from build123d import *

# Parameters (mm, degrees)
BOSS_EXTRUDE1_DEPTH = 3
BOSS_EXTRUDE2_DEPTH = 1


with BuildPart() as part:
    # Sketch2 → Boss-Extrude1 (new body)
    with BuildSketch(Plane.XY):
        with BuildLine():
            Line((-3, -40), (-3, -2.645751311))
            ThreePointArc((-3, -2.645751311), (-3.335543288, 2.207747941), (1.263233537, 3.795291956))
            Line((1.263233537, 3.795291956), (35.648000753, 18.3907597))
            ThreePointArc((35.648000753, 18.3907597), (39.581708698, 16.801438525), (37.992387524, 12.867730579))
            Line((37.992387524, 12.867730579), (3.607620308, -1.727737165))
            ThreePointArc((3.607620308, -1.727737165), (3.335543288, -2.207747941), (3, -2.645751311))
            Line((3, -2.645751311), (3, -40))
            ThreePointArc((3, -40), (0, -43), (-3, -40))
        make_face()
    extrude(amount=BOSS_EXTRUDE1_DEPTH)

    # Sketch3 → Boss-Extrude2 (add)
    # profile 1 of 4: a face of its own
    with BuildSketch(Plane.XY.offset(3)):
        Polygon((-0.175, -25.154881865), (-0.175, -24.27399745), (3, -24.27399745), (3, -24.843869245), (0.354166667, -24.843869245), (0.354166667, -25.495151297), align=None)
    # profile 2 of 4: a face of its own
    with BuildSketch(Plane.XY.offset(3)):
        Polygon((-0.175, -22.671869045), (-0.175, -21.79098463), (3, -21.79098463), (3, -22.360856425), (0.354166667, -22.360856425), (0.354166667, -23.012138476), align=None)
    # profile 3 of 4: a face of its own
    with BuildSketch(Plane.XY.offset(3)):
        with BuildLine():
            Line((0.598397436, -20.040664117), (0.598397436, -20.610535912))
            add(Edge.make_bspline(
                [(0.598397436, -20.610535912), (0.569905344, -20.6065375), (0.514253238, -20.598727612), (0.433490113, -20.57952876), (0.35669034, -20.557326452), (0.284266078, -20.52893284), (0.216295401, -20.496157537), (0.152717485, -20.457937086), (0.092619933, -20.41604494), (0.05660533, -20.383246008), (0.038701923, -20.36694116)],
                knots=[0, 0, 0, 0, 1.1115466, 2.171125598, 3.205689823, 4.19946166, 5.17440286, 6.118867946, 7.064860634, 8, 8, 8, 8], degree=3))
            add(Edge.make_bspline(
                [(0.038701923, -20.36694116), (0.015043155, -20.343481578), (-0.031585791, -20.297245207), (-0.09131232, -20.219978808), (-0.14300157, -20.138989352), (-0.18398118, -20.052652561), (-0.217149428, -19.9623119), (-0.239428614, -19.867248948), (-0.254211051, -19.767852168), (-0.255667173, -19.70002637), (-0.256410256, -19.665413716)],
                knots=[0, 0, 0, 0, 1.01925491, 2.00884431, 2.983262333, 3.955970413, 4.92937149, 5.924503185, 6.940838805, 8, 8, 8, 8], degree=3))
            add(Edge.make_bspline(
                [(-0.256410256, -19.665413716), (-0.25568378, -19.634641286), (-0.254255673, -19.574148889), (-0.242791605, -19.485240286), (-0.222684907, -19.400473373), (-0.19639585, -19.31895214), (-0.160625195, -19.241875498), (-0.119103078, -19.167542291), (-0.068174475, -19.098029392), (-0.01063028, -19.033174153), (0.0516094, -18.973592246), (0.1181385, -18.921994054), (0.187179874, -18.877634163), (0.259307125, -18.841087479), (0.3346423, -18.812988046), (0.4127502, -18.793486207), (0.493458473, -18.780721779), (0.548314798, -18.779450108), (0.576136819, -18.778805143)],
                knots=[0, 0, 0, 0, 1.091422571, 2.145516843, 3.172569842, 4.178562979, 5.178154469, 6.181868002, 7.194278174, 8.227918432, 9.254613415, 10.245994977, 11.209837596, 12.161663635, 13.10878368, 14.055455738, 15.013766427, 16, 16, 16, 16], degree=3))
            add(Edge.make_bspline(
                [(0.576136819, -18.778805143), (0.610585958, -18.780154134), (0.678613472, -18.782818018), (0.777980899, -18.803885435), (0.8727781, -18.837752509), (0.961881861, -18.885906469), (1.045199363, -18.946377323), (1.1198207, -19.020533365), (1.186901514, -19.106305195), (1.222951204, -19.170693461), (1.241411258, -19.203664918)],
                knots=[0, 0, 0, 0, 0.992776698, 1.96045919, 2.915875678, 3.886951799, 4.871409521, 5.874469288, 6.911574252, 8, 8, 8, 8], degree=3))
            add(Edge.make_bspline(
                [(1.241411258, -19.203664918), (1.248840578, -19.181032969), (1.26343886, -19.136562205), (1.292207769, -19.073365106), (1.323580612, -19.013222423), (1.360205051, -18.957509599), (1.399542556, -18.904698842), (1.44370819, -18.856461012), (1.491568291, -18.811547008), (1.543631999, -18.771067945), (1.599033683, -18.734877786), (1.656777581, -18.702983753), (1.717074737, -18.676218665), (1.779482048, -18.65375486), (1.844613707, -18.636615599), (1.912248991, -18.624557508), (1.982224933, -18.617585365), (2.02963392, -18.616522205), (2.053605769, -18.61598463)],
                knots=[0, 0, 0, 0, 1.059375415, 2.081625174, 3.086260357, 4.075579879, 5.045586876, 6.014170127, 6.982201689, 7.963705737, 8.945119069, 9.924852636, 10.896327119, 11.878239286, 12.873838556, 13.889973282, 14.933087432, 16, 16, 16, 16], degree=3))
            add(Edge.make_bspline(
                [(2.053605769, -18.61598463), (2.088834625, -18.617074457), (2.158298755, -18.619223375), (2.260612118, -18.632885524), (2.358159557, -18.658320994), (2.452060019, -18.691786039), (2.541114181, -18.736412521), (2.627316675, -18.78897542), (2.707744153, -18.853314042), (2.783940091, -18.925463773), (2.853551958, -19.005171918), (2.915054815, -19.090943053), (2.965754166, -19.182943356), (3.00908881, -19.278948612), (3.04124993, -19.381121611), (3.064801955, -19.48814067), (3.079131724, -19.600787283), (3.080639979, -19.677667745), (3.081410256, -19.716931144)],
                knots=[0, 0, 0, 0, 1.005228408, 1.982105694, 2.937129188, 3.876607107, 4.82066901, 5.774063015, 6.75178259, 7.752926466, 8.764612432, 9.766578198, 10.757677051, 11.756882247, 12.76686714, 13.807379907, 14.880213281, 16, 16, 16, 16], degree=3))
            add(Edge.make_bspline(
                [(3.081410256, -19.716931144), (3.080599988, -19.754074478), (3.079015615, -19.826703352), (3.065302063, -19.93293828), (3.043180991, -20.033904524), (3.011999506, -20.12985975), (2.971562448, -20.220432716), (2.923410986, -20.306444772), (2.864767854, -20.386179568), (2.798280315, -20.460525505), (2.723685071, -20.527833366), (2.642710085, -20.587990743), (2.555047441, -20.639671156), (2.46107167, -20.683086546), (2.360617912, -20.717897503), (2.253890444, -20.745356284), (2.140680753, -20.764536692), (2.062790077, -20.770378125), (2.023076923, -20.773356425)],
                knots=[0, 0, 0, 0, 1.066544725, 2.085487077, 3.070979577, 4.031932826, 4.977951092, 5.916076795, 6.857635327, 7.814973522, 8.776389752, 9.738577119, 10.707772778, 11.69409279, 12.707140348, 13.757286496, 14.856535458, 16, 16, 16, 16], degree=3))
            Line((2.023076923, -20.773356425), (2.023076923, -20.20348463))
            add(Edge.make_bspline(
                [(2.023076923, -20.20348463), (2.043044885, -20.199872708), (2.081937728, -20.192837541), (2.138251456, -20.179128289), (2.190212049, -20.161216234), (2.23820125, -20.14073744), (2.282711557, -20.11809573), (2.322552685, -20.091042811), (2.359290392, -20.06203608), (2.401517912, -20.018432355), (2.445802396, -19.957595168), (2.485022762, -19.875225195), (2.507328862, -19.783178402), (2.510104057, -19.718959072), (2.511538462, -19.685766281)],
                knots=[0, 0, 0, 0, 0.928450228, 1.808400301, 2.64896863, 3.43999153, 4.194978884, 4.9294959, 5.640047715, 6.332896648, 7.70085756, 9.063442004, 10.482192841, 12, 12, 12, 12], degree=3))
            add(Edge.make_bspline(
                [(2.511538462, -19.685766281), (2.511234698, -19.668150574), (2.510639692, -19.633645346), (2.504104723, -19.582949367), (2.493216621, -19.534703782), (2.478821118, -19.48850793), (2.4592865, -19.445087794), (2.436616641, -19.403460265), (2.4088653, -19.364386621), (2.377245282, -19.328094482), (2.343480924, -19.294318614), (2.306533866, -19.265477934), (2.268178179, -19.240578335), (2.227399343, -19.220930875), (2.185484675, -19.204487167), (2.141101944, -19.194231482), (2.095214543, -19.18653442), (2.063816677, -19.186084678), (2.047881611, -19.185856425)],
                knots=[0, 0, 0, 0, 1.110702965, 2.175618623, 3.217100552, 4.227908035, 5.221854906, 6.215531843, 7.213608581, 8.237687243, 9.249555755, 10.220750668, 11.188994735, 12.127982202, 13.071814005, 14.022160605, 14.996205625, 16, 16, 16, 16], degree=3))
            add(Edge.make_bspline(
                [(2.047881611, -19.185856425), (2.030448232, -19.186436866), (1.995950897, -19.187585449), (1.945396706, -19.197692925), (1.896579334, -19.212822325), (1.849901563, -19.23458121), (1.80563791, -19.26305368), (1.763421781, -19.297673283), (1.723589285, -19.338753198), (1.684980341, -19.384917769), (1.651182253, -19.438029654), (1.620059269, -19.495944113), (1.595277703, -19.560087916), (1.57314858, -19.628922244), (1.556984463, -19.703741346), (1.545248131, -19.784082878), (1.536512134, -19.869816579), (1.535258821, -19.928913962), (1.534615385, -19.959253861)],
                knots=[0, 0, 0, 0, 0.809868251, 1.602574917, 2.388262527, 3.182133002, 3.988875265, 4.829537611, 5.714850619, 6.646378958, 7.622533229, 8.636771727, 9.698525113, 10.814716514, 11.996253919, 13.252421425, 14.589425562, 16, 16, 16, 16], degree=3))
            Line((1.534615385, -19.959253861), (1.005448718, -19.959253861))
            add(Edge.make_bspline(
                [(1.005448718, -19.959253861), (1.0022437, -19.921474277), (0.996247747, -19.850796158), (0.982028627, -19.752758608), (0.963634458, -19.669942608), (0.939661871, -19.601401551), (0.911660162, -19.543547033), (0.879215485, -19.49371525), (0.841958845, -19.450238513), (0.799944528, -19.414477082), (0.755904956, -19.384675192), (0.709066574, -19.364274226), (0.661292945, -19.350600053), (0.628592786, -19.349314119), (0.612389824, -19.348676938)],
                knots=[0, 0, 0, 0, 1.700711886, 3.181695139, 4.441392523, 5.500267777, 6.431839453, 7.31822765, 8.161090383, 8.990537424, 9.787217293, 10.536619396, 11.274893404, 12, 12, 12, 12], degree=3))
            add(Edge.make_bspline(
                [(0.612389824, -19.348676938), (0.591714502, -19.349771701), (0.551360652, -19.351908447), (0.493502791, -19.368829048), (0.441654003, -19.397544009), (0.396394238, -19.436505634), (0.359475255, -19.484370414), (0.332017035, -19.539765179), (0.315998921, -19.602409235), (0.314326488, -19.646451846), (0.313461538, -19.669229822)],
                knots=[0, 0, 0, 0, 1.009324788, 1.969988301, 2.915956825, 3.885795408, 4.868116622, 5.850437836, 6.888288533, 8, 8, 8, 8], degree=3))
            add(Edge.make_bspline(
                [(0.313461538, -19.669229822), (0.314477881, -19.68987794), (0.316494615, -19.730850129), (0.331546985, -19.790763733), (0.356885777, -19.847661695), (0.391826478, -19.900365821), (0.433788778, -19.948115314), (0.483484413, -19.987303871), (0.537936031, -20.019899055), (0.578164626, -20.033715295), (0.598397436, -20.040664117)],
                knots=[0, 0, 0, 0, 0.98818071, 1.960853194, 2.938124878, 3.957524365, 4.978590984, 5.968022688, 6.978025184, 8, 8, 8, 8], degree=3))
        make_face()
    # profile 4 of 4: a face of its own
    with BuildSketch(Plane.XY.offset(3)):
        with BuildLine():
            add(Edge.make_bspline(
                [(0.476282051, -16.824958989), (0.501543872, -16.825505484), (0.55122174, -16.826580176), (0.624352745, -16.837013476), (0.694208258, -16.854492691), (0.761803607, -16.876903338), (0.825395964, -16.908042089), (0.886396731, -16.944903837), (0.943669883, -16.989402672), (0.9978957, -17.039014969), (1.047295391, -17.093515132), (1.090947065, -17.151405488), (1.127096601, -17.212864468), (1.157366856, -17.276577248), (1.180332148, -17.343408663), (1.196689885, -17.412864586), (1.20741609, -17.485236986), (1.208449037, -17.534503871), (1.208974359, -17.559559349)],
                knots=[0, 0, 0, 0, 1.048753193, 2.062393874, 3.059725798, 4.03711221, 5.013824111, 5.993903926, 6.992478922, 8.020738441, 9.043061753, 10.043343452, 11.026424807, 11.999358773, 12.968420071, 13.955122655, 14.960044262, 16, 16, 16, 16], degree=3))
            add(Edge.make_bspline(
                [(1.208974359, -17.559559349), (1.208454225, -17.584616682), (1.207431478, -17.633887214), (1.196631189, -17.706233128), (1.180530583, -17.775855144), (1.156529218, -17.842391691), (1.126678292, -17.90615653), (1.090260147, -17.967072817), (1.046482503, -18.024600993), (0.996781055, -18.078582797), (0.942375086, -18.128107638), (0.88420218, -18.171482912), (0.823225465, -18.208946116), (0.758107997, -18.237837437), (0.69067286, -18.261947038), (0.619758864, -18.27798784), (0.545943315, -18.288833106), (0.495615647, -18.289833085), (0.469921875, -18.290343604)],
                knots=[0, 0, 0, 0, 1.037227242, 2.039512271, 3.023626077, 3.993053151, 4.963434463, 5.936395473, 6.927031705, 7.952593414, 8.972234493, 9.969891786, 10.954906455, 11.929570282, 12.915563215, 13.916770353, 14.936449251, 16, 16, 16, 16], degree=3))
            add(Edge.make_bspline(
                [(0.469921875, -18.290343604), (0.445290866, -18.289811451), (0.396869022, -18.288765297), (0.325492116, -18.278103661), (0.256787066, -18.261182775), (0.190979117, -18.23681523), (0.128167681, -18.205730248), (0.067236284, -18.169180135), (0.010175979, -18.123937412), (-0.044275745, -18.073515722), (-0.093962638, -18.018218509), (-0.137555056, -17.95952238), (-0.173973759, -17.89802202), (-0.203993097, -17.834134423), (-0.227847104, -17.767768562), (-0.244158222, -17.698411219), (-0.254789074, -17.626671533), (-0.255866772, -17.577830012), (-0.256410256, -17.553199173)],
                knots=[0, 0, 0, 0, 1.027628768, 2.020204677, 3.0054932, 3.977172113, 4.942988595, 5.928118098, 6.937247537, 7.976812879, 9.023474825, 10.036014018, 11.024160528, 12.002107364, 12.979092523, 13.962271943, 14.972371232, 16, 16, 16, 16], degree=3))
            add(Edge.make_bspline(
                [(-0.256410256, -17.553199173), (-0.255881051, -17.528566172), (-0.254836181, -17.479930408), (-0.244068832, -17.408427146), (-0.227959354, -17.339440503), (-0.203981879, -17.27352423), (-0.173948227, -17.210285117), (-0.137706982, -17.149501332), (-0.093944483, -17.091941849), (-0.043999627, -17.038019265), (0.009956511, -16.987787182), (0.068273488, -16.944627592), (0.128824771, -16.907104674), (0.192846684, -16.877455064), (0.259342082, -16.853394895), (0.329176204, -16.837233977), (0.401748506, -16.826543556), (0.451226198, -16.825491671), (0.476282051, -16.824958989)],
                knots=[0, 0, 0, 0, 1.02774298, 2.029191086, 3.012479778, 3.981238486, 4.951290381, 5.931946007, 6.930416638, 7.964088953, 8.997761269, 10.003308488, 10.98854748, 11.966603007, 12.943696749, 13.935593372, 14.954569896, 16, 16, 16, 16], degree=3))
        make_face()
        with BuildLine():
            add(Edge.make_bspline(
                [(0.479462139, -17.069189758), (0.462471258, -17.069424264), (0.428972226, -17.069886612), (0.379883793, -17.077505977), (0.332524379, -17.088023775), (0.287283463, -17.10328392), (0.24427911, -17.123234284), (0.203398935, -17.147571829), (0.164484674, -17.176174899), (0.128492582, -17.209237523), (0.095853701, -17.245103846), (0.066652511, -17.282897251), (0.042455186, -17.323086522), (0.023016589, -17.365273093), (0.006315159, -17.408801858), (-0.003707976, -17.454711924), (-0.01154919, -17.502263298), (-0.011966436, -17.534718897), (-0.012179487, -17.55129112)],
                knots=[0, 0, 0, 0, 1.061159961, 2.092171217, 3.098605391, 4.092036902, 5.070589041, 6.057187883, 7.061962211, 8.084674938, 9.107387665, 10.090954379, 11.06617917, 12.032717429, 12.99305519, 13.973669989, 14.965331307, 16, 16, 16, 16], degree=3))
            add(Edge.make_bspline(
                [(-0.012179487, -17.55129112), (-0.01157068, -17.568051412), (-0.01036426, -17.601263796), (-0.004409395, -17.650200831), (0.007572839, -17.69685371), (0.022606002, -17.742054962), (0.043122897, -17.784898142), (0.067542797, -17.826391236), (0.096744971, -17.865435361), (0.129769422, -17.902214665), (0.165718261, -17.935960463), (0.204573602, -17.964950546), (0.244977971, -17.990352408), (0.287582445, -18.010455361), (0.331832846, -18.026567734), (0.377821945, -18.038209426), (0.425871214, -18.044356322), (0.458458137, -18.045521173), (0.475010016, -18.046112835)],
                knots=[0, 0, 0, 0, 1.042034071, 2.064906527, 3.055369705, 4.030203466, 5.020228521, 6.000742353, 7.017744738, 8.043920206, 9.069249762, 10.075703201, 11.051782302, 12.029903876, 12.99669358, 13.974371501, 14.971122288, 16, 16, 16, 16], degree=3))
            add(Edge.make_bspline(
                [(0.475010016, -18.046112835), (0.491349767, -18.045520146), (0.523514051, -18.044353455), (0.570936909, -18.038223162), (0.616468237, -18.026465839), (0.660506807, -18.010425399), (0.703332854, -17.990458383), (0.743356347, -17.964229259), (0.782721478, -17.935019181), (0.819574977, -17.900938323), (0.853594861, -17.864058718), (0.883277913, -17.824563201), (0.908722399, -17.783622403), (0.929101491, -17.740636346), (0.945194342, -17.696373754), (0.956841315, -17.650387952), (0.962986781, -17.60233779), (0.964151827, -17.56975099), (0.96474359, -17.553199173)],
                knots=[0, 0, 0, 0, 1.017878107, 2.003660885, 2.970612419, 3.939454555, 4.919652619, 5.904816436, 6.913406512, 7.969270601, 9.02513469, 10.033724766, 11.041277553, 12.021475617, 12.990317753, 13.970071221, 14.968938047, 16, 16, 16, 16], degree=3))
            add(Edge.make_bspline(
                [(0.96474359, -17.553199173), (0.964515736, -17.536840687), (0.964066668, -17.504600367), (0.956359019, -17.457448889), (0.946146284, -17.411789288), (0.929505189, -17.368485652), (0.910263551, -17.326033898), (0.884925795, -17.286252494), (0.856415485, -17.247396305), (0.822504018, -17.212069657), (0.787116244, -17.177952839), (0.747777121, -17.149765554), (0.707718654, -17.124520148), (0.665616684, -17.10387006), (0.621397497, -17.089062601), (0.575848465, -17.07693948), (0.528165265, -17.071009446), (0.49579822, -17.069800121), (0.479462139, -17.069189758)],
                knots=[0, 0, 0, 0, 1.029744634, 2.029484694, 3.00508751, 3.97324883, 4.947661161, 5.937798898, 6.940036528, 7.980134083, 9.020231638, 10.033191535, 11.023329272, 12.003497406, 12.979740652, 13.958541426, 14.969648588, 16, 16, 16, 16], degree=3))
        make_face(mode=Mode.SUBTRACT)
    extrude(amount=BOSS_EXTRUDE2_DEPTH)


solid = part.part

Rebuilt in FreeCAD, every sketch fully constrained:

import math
import FreeCAD as App
import Part
import Sketcher
Q = App.Units.Quantity

doc = App.newDocument("Part")
body = doc.addObject("PartDesign::Body", "Body")

sketch1 = doc.addObject("Sketcher::SketchObject", "Sketch")
body.addObject(sketch1)
sketch1.AttachmentSupport = (doc.XY_Plane, [""])
sketch1.MapMode = "FlatFace"
sketch1.addGeometry(Part.LineSegment(App.Vector(-3, -2.6, 0), App.Vector(-3, -40, 0)), False)
sketch1.addGeometry(Part.ArcOfCircle(Part.Circle(App.Vector(0, -40, 0), App.Vector(0, 0, 1), 3), math.radians(180), math.radians(360)), False)
sketch1.addGeometry(Part.LineSegment(App.Vector(3, -40, 0), App.Vector(3, -2.6, 0)), False)
sketch1.addGeometry(Part.ArcOfCircle(Part.Circle(App.Vector(0, 0, 0), App.Vector(0, 0, 1), 4), math.radians(-41.41), math.radians(-25.59)), False)
sketch1.addGeometry(Part.LineSegment(App.Vector(3.6, -1.7, 0), App.Vector(38, 12.9, 0)), False)
sketch1.addGeometry(Part.ArcOfCircle(Part.Circle(App.Vector(36.8, 15.6, 0), App.Vector(0, 0, 1), 3), math.radians(-67), math.radians(113)), False)
sketch1.addGeometry(Part.LineSegment(App.Vector(35.6, 18.4, 0), App.Vector(1.3, 3.8, 0)), False)
sketch1.addGeometry(Part.ArcOfCircle(Part.Circle(App.Vector(0, 0, 0), App.Vector(0, 0, 1), 4), math.radians(72), math.radians(221)), False)
sketch1.addConstraint(Sketcher.Constraint("Tangent", 0, 2, 1, 1))
sketch1.addConstraint(Sketcher.Constraint("Tangent", 1, 2, 2, 1))
sketch1.addConstraint(Sketcher.Constraint("Coincident", 2, 2, 3, 1))
sketch1.addConstraint(Sketcher.Constraint("Coincident", 3, 2, 4, 1))
sketch1.addConstraint(Sketcher.Constraint("Tangent", 4, 2, 5, 1))
sketch1.addConstraint(Sketcher.Constraint("Tangent", 5, 2, 6, 1))
sketch1.addConstraint(Sketcher.Constraint("Coincident", 6, 2, 7, 1))
sketch1.addConstraint(Sketcher.Constraint("Coincident", 7, 2, 0, 1))
sketch1.addConstraint(Sketcher.Constraint("Vertical", 0))
sketch1.addConstraint(Sketcher.Constraint("Vertical", 2))
sketch1.addConstraint(Sketcher.Constraint("Coincident", 3, 3, -1, 1))
sketch1.addConstraint(Sketcher.Constraint("Coincident", 7, 3, -1, 1))
sketch1.addConstraint(Sketcher.Constraint("Equal", 1, 5))
sketch1.addConstraint(Sketcher.Constraint("Equal", 3, 7))
sketch1.addConstraint(Sketcher.Constraint("PointOnObject", 1, 3, -2))
sketch1.addConstraint(Sketcher.Constraint("Parallel", 4, 6))
sketch1.addConstraint(Sketcher.Constraint("Equal", 4, 6))
sketch1.addConstraint(Sketcher.Constraint("Radius", 1, 3.0))
sketch1.addConstraint(Sketcher.Constraint("Radius", 3, 4.0))
sketch1.addConstraint(Sketcher.Constraint("Angle", 4, Q("23 deg")))
sketch1.addConstraint(Sketcher.Constraint("DistanceY", 1, 3, -1, 1, 40.0))
sketch1.addConstraint(Sketcher.Constraint("DistanceX", -1, 1, 5, 2, 35.648001))
pad1 = doc.addObject("PartDesign::Pad", "Pad")
body.addObject(pad1)
pad1.Profile = sketch1
pad1.Length = 3

sketch2 = doc.addObject("Sketcher::SketchObject", "Sketch001")
body.addObject(sketch2)
sketch2.AttachmentSupport = (doc.XY_Plane, [""])
sketch2.MapMode = "FlatFace"
sketch2.AttachmentOffset = App.Placement(App.Vector(0, 0, 3), App.Rotation())
sketch2.addGeometry(Part.LineSegment(App.Vector(-0.175, -24.273997, 0), App.Vector(-0.175, -25.154882, 0)), False)
sketch2.addGeometry(Part.LineSegment(App.Vector(-0.175, -25.154882, 0), App.Vector(0.354167, -25.495151, 0)), False)
sketch2.addGeometry(Part.LineSegment(App.Vector(0.354167, -25.495151, 0), App.Vector(0.354167, -24.843869, 0)), False)
sketch2.addGeometry(Part.LineSegment(App.Vector(0.354167, -24.843869, 0), App.Vector(3, -24.843869, 0)), False)
sketch2.addGeometry(Part.LineSegment(App.Vector(3, -24.843869, 0), App.Vector(3, -24.273997, 0)), False)
sketch2.addGeometry(Part.LineSegment(App.Vector(3, -24.273997, 0), App.Vector(-0.175, -24.273997, 0)), False)
sketch2.addGeometry(Part.LineSegment(App.Vector(-0.175, -21.790985, 0), App.Vector(-0.175, -22.671869, 0)), False)
sketch2.addGeometry(Part.LineSegment(App.Vector(-0.175, -22.671869, 0), App.Vector(0.354167, -23.012138, 0)), False)
sketch2.addGeometry(Part.LineSegment(App.Vector(0.354167, -23.012138, 0), App.Vector(0.354167, -22.360856, 0)), False)
sketch2.addGeometry(Part.LineSegment(App.Vector(0.354167, -22.360856, 0), App.Vector(3, -22.360856, 0)), False)
sketch2.addGeometry(Part.LineSegment(App.Vector(3, -22.360856, 0), App.Vector(3, -21.790985, 0)), False)
sketch2.addGeometry(Part.LineSegment(App.Vector(3, -21.790985, 0), App.Vector(-0.175, -21.790985, 0)), False)
sketch2.addGeometry(Part.LineSegment(App.Vector(0.598397, -20.610536, 0), App.Vector(0.598397, -20.040664, 0)), False)
sketch2.addGeometry(Part.BSplineCurve([App.Vector(0.313462, -19.66923, 0), App.Vector(0.314478, -19.689878, 0), App.Vector(0.316495, -19.73085, 0), App.Vector(0.331547, -19.790764, 0), App.Vector(0.356886, -19.847662, 0), App.Vector(0.391826, -19.900366, 0), App.Vector(0.433789, -19.948115, 0), App.Vector(0.483484, -19.987304, 0), App.Vector(0.537936, -20.019899, 0), App.Vector(0.578165, -20.033715, 0), App.Vector(0.598397, -20.040664, 0)], [4, 1, 1, 1, 1, 1, 1, 1, 4], [0, 0.98818071, 1.960853194, 2.938124878, 3.957524365, 4.978590984, 5.968022688, 6.978025184, 8], False, 3, [1, 1, 1, 1, 1, 1, 1, 1, 1, 1, 1], False), False)
sketch2.addGeometry(Part.BSplineCurve([App.Vector(0.61239, -19.348677, 0), App.Vector(0.591715, -19.349772, 0), App.Vector(0.551361, -19.351908, 0), App.Vector(0.493503, -19.368829, 0), App.Vector(0.441654, -19.397544, 0), App.Vector(0.396394, -19.436506, 0), App.Vector(0.359475, -19.48437, 0), App.Vector(0.332017, -19.539765, 0), App.Vector(0.315999, -19.602409, 0), App.Vector(0.314326, -19.646452, 0), App.Vector(0.313462, -19.66923, 0)], [4, 1, 1, 1, 1, 1, 1, 1, 4], [0, 1.009324788, 1.969988301, 2.915956825, 3.885795408, 4.868116622, 5.850437836, 6.888288533, 8], False, 3, [1, 1, 1, 1, 1, 1, 1, 1, 1, 1, 1], False), False)
sketch2.addGeometry(Part.BSplineCurve([App.Vector(1.005449, -19.959254, 0), App.Vector(1.002244, -19.921474, 0), App.Vector(0.996248, -19.850796, 0), App.Vector(0.982029, -19.752759, 0), App.Vector(0.963634, -19.669943, 0), App.Vector(0.939662, -19.601402, 0), App.Vector(0.91166, -19.543547, 0), App.Vector(0.879215, -19.493715, 0), App.Vector(0.841959, -19.450239, 0), App.Vector(0.799945, -19.414477, 0), App.Vector(0.755905, -19.384675, 0), App.Vector(0.709067, -19.364274, 0), App.Vector(0.661293, -19.3506, 0), App.Vector(0.628593, -19.349314, 0), App.Vector(0.61239, -19.348677, 0)], [4, 1, 1, 1, 1, 1, 1, 1, 1, 1, 1, 1, 4], [0, 1.700711886, 3.181695139, 4.441392523, 5.500267777, 6.431839453, 7.31822765, 8.161090383, 8.990537424, 9.787217293, 10.536619396, 11.274893404, 12], False, 3, [1, 1, 1, 1, 1, 1, 1, 1, 1, 1, 1, 1, 1, 1, 1], False), False)
sketch2.addGeometry(Part.LineSegment(App.Vector(1.005449, -19.959254, 0), App.Vector(1.534615, -19.959254, 0)), False)
sketch2.addGeometry(Part.BSplineCurve([App.Vector(2.047882, -19.185856, 0), App.Vector(2.030448, -19.186437, 0), App.Vector(1.995951, -19.187585, 0), App.Vector(1.945397, -19.197693, 0), App.Vector(1.896579, -19.212822, 0), App.Vector(1.849902, -19.234581, 0), App.Vector(1.805638, -19.263054, 0), App.Vector(1.763422, -19.297673, 0), App.Vector(1.723589, -19.338753, 0), App.Vector(1.68498, -19.384918, 0), App.Vector(1.651182, -19.43803, 0), App.Vector(1.620059, -19.495944, 0), App.Vector(1.595278, -19.560088, 0), App.Vector(1.573149, -19.628922, 0), App.Vector(1.556984, -19.703741, 0), App.Vector(1.545248, -19.784083, 0), App.Vector(1.536512, -19.869817, 0), App.Vector(1.535259, -19.928914, 0), App.Vector(1.534615, -19.959254, 0)], [4, 1, 1, 1, 1, 1, 1, 1, 1, 1, 1, 1, 1, 1, 1, 1, 4], [0, 0.809868251, 1.602574917, 2.388262527, 3.182133002, 3.988875265, 4.829537611, 5.714850619, 6.646378958, 7.622533229, 8.636771727, 9.698525113, 10.814716514, 11.996253919, 13.252421425, 14.589425562, 16], False, 3, [1, 1, 1, 1, 1, 1, 1, 1, 1, 1, 1, 1, 1, 1, 1, 1, 1, 1, 1], False), False)
sketch2.addGeometry(Part.BSplineCurve([App.Vector(2.511538, -19.685766, 0), App.Vector(2.511235, -19.668151, 0), App.Vector(2.51064, -19.633645, 0), App.Vector(2.504105, -19.582949, 0), App.Vector(2.493217, -19.534704, 0), App.Vector(2.478821, -19.488508, 0), App.Vector(2.459287, -19.445088, 0), App.Vector(2.436617, -19.40346, 0), App.Vector(2.408865, -19.364387, 0), App.Vector(2.377245, -19.328094, 0), App.Vector(2.343481, -19.294319, 0), App.Vector(2.306534, -19.265478, 0), App.Vector(2.268178, -19.240578, 0), App.Vector(2.227399, -19.220931, 0), App.Vector(2.185485, -19.204487, 0), App.Vector(2.141102, -19.194231, 0), App.Vector(2.095215, -19.186534, 0), App.Vector(2.063817, -19.186085, 0), App.Vector(2.047882, -19.185856, 0)], [4, 1, 1, 1, 1, 1, 1, 1, 1, 1, 1, 1, 1, 1, 1, 1, 4], [0, 1.110702965, 2.175618623, 3.217100552, 4.227908035, 5.221854906, 6.215531843, 7.213608581, 8.237687243, 9.249555755, 10.220750668, 11.188994735, 12.127982202, 13.071814005, 14.022160605, 14.996205625, 16], False, 3, [1, 1, 1, 1, 1, 1, 1, 1, 1, 1, 1, 1, 1, 1, 1, 1, 1, 1, 1], False), False)
sketch2.addGeometry(Part.BSplineCurve([App.Vector(2.023077, -20.203485, 0), App.Vector(2.043045, -20.199873, 0), App.Vector(2.081938, -20.192838, 0), App.Vector(2.138251, -20.179128, 0), App.Vector(2.190212, -20.161216, 0), App.Vector(2.238201, -20.140737, 0), App.Vector(2.282712, -20.118096, 0), App.Vector(2.322553, -20.091043, 0), App.Vector(2.35929, -20.062036, 0), App.Vector(2.401518, -20.018432, 0), App.Vector(2.445802, -19.957595, 0), App.Vector(2.485023, -19.875225, 0), App.Vector(2.507329, -19.783178, 0), App.Vector(2.510104, -19.718959, 0), App.Vector(2.511538, -19.685766, 0)], [4, 1, 1, 1, 1, 1, 1, 1, 1, 1, 1, 1, 4], [0, 0.928450228, 1.808400301, 2.64896863, 3.43999153, 4.194978884, 4.9294959, 5.640047715, 6.332896648, 7.70085756, 9.063442004, 10.482192841, 12], False, 3, [1, 1, 1, 1, 1, 1, 1, 1, 1, 1, 1, 1, 1, 1, 1], False), False)
sketch2.addGeometry(Part.LineSegment(App.Vector(2.023077, -20.203485, 0), App.Vector(2.023077, -20.773356, 0)), False)
sketch2.addGeometry(Part.BSplineCurve([App.Vector(3.08141, -19.716931, 0), App.Vector(3.0806, -19.754074, 0), App.Vector(3.079016, -19.826703, 0), App.Vector(3.065302, -19.932938, 0), App.Vector(3.043181, -20.033905, 0), App.Vector(3.012, -20.12986, 0), App.Vector(2.971562, -20.220433, 0), App.Vector(2.923411, -20.306445, 0), App.Vector(2.864768, -20.38618, 0), App.Vector(2.79828, -20.460526, 0), App.Vector(2.723685, -20.527833, 0), App.Vector(2.64271, -20.587991, 0), App.Vector(2.555047, -20.639671, 0), App.Vector(2.461072, -20.683087, 0), App.Vector(2.360618, -20.717898, 0), App.Vector(2.25389, -20.745356, 0), App.Vector(2.140681, -20.764537, 0), App.Vector(2.06279, -20.770378, 0), App.Vector(2.023077, -20.773356, 0)], [4, 1, 1, 1, 1, 1, 1, 1, 1, 1, 1, 1, 1, 1, 1, 1, 4], [0, 1.066544725, 2.085487077, 3.070979577, 4.031932826, 4.977951092, 5.916076795, 6.857635327, 7.814973522, 8.776389752, 9.738577119, 10.707772778, 11.69409279, 12.707140348, 13.757286496, 14.856535458, 16], False, 3, [1, 1, 1, 1, 1, 1, 1, 1, 1, 1, 1, 1, 1, 1, 1, 1, 1, 1, 1], False), False)
sketch2.addGeometry(Part.BSplineCurve([App.Vector(2.053606, -18.615985, 0), App.Vector(2.088835, -18.617074, 0), App.Vector(2.158299, -18.619223, 0), App.Vector(2.260612, -18.632886, 0), App.Vector(2.35816, -18.658321, 0), App.Vector(2.45206, -18.691786, 0), App.Vector(2.541114, -18.736413, 0), App.Vector(2.627317, -18.788975, 0), App.Vector(2.707744, -18.853314, 0), App.Vector(2.78394, -18.925464, 0), App.Vector(2.853552, -19.005172, 0), App.Vector(2.915055, -19.090943, 0), App.Vector(2.965754, -19.182943, 0), App.Vector(3.009089, -19.278949, 0), App.Vector(3.04125, -19.381122, 0), App.Vector(3.064802, -19.488141, 0), App.Vector(3.079132, -19.600787, 0), App.Vector(3.08064, -19.677668, 0), App.Vector(3.08141, -19.716931, 0)], [4, 1, 1, 1, 1, 1, 1, 1, 1, 1, 1, 1, 1, 1, 1, 1, 4], [0, 1.005228408, 1.982105694, 2.937129188, 3.876607107, 4.82066901, 5.774063015, 6.75178259, 7.752926466, 8.764612432, 9.766578198, 10.757677051, 11.756882247, 12.76686714, 13.807379907, 14.880213281, 16], False, 3, [1, 1, 1, 1, 1, 1, 1, 1, 1, 1, 1, 1, 1, 1, 1, 1, 1, 1, 1], False), False)
sketch2.addGeometry(Part.BSplineCurve([App.Vector(1.241411, -19.203665, 0), App.Vector(1.248841, -19.181033, 0), App.Vector(1.263439, -19.136562, 0), App.Vector(1.292208, -19.073365, 0), App.Vector(1.323581, -19.013222, 0), App.Vector(1.360205, -18.95751, 0), App.Vector(1.399543, -18.904699, 0), App.Vector(1.443708, -18.856461, 0), App.Vector(1.491568, -18.811547, 0), App.Vector(1.543632, -18.771068, 0), App.Vector(1.599034, -18.734878, 0), App.Vector(1.656778, -18.702984, 0), App.Vector(1.717075, -18.676219, 0), App.Vector(1.779482, -18.653755, 0), App.Vector(1.844614, -18.636616, 0), App.Vector(1.912249, -18.624558, 0), App.Vector(1.982225, -18.617585, 0), App.Vector(2.029634, -18.616522, 0), App.Vector(2.053606, -18.615985, 0)], [4, 1, 1, 1, 1, 1, 1, 1, 1, 1, 1, 1, 1, 1, 1, 1, 4], [0, 1.059375415, 2.081625174, 3.086260357, 4.075579879, 5.045586876, 6.014170127, 6.982201689, 7.963705737, 8.945119069, 9.924852636, 10.896327119, 11.878239286, 12.873838556, 13.889973282, 14.933087432, 16], False, 3, [1, 1, 1, 1, 1, 1, 1, 1, 1, 1, 1, 1, 1, 1, 1, 1, 1, 1, 1], False), False)
sketch2.addGeometry(Part.BSplineCurve([App.Vector(0.576137, -18.778805, 0), App.Vector(0.610586, -18.780154, 0), App.Vector(0.678613, -18.782818, 0), App.Vector(0.777981, -18.803885, 0), App.Vector(0.872778, -18.837753, 0), App.Vector(0.961882, -18.885906, 0), App.Vector(1.045199, -18.946377, 0), App.Vector(1.119821, -19.020533, 0), App.Vector(1.186902, -19.106305, 0), App.Vector(1.222951, -19.170693, 0), App.Vector(1.241411, -19.203665, 0)], [4, 1, 1, 1, 1, 1, 1, 1, 4], [0, 0.992776698, 1.96045919, 2.915875678, 3.886951799, 4.871409521, 5.874469288, 6.911574252, 8], False, 3, [1, 1, 1, 1, 1, 1, 1, 1, 1, 1, 1], False), False)
sketch2.addGeometry(Part.BSplineCurve([App.Vector(-0.25641, -19.665414, 0), App.Vector(-0.255684, -19.634641, 0), App.Vector(-0.254256, -19.574149, 0), App.Vector(-0.242792, -19.48524, 0), App.Vector(-0.222685, -19.400473, 0), App.Vector(-0.196396, -19.318952, 0), App.Vector(-0.160625, -19.241875, 0), App.Vector(-0.119103, -19.167542, 0), App.Vector(-0.068174, -19.098029, 0), App.Vector(-0.01063, -19.033174, 0), App.Vector(0.051609, -18.973592, 0), App.Vector(0.118138, -18.921994, 0), App.Vector(0.18718, -18.877634, 0), App.Vector(0.259307, -18.841087, 0), App.Vector(0.334642, -18.812988, 0), App.Vector(0.41275, -18.793486, 0), App.Vector(0.493458, -18.780722, 0), App.Vector(0.548315, -18.77945, 0), App.Vector(0.576137, -18.778805, 0)], [4, 1, 1, 1, 1, 1, 1, 1, 1, 1, 1, 1, 1, 1, 1, 1, 4], [0, 1.091422571, 2.145516843, 3.172569842, 4.178562979, 5.178154469, 6.181868002, 7.194278174, 8.227918432, 9.254613415, 10.245994977, 11.209837596, 12.161663635, 13.10878368, 14.055455738, 15.013766427, 16], False, 3, [1, 1, 1, 1, 1, 1, 1, 1, 1, 1, 1, 1, 1, 1, 1, 1, 1, 1, 1], False), False)
sketch2.addGeometry(Part.BSplineCurve([App.Vector(0.038702, -20.366941, 0), App.Vector(0.015043, -20.343482, 0), App.Vector(-0.031586, -20.297245, 0), App.Vector(-0.091312, -20.219979, 0), App.Vector(-0.143002, -20.138989, 0), App.Vector(-0.183981, -20.052653, 0), App.Vector(-0.217149, -19.962312, 0), App.Vector(-0.239429, -19.867249, 0), App.Vector(-0.254211, -19.767852, 0), App.Vector(-0.255667, -19.700026, 0), App.Vector(-0.25641, -19.665414, 0)], [4, 1, 1, 1, 1, 1, 1, 1, 4], [0, 1.01925491, 2.00884431, 2.983262333, 3.955970413, 4.92937149, 5.924503185, 6.940838805, 8], False, 3, [1, 1, 1, 1, 1, 1, 1, 1, 1, 1, 1], False), False)
sketch2.addGeometry(Part.BSplineCurve([App.Vector(0.598397, -20.610536, 0), App.Vector(0.569905, -20.606538, 0), App.Vector(0.514253, -20.598728, 0), App.Vector(0.43349, -20.579529, 0), App.Vector(0.35669, -20.557326, 0), App.Vector(0.284266, -20.528933, 0), App.Vector(0.216295, -20.496158, 0), App.Vector(0.152717, -20.457937, 0), App.Vector(0.09262, -20.416045, 0), App.Vector(0.056605, -20.383246, 0), App.Vector(0.038702, -20.366941, 0)], [4, 1, 1, 1, 1, 1, 1, 1, 4], [0, 1.1115466, 2.171125598, 3.205689823, 4.19946166, 5.17440286, 6.118867946, 7.064860634, 8], False, 3, [1, 1, 1, 1, 1, 1, 1, 1, 1, 1, 1], False), False)
sketch2.addGeometry(Part.BSplineCurve([App.Vector(0.476282, -16.824959, 0), App.Vector(0.501544, -16.825505, 0), App.Vector(0.551222, -16.82658, 0), App.Vector(0.624353, -16.837013, 0), App.Vector(0.694208, -16.854493, 0), App.Vector(0.761804, -16.876903, 0), App.Vector(0.825396, -16.908042, 0), App.Vector(0.886397, -16.944904, 0), App.Vector(0.94367, -16.989403, 0), App.Vector(0.997896, -17.039015, 0), App.Vector(1.047295, -17.093515, 0), App.Vector(1.090947, -17.151405, 0), App.Vector(1.127097, -17.212864, 0), App.Vector(1.157367, -17.276577, 0), App.Vector(1.180332, -17.343409, 0), App.Vector(1.19669, -17.412865, 0), App.Vector(1.207416, -17.485237, 0), App.Vector(1.208449, -17.534504, 0), App.Vector(1.208974, -17.559559, 0)], [4, 1, 1, 1, 1, 1, 1, 1, 1, 1, 1, 1, 1, 1, 1, 1, 4], [0, 1.048753193, 2.062393874, 3.059725798, 4.03711221, 5.013824111, 5.993903926, 6.992478922, 8.020738441, 9.043061753, 10.043343452, 11.026424807, 11.999358773, 12.968420071, 13.955122655, 14.960044262, 16], False, 3, [1, 1, 1, 1, 1, 1, 1, 1, 1, 1, 1, 1, 1, 1, 1, 1, 1, 1, 1], False), False)
sketch2.addGeometry(Part.BSplineCurve([App.Vector(-0.25641, -17.553199, 0), App.Vector(-0.255881, -17.528566, 0), App.Vector(-0.254836, -17.47993, 0), App.Vector(-0.244069, -17.408427, 0), App.Vector(-0.227959, -17.339441, 0), App.Vector(-0.203982, -17.273524, 0), App.Vector(-0.173948, -17.210285, 0), App.Vector(-0.137707, -17.149501, 0), App.Vector(-0.093944, -17.091942, 0), App.Vector(-0.044, -17.038019, 0), App.Vector(0.009957, -16.987787, 0), App.Vector(0.068273, -16.944628, 0), App.Vector(0.128825, -16.907105, 0), App.Vector(0.192847, -16.877455, 0), App.Vector(0.259342, -16.853395, 0), App.Vector(0.329176, -16.837234, 0), App.Vector(0.401749, -16.826544, 0), App.Vector(0.451226, -16.825492, 0), App.Vector(0.476282, -16.824959, 0)], [4, 1, 1, 1, 1, 1, 1, 1, 1, 1, 1, 1, 1, 1, 1, 1, 4], [0, 1.02774298, 2.029191086, 3.012479778, 3.981238486, 4.951290381, 5.931946007, 6.930416638, 7.964088953, 8.997761269, 10.003308488, 10.98854748, 11.966603007, 12.943696749, 13.935593372, 14.954569896, 16], False, 3, [1, 1, 1, 1, 1, 1, 1, 1, 1, 1, 1, 1, 1, 1, 1, 1, 1, 1, 1], False), False)
sketch2.addGeometry(Part.BSplineCurve([App.Vector(0.469922, -18.290344, 0), App.Vector(0.445291, -18.289811, 0), App.Vector(0.396869, -18.288765, 0), App.Vector(0.325492, -18.278104, 0), App.Vector(0.256787, -18.261183, 0), App.Vector(0.190979, -18.236815, 0), App.Vector(0.128168, -18.20573, 0), App.Vector(0.067236, -18.16918, 0), App.Vector(0.010176, -18.123937, 0), App.Vector(-0.044276, -18.073516, 0), App.Vector(-0.093963, -18.018219, 0), App.Vector(-0.137555, -17.959522, 0), App.Vector(-0.173974, -17.898022, 0), App.Vector(-0.203993, -17.834134, 0), App.Vector(-0.227847, -17.767769, 0), App.Vector(-0.244158, -17.698411, 0), App.Vector(-0.254789, -17.626672, 0), App.Vector(-0.255867, -17.57783, 0), App.Vector(-0.25641, -17.553199, 0)], [4, 1, 1, 1, 1, 1, 1, 1, 1, 1, 1, 1, 1, 1, 1, 1, 4], [0, 1.027628768, 2.020204677, 3.0054932, 3.977172113, 4.942988595, 5.928118098, 6.937247537, 7.976812879, 9.023474825, 10.036014018, 11.024160528, 12.002107364, 12.979092523, 13.962271943, 14.972371232, 16], False, 3, [1, 1, 1, 1, 1, 1, 1, 1, 1, 1, 1, 1, 1, 1, 1, 1, 1, 1, 1], False), False)
sketch2.addGeometry(Part.BSplineCurve([App.Vector(1.208974, -17.559559, 0), App.Vector(1.208454, -17.584617, 0), App.Vector(1.207431, -17.633887, 0), App.Vector(1.196631, -17.706233, 0), App.Vector(1.180531, -17.775855, 0), App.Vector(1.156529, -17.842392, 0), App.Vector(1.126678, -17.906157, 0), App.Vector(1.09026, -17.967073, 0), App.Vector(1.046483, -18.024601, 0), App.Vector(0.996781, -18.078583, 0), App.Vector(0.942375, -18.128108, 0), App.Vector(0.884202, -18.171483, 0), App.Vector(0.823225, -18.208946, 0), App.Vector(0.758108, -18.237837, 0), App.Vector(0.690673, -18.261947, 0), App.Vector(0.619759, -18.277988, 0), App.Vector(0.545943, -18.288833, 0), App.Vector(0.495616, -18.289833, 0), App.Vector(0.469922, -18.290344, 0)], [4, 1, 1, 1, 1, 1, 1, 1, 1, 1, 1, 1, 1, 1, 1, 1, 4], [0, 1.037227242, 2.039512271, 3.023626077, 3.993053151, 4.963434463, 5.936395473, 6.927031705, 7.952593414, 8.972234493, 9.969891786, 10.954906455, 11.929570282, 12.915563215, 13.916770353, 14.936449251, 16], False, 3, [1, 1, 1, 1, 1, 1, 1, 1, 1, 1, 1, 1, 1, 1, 1, 1, 1, 1, 1], False), False)
sketch2.addGeometry(Part.BSplineCurve([App.Vector(0.964744, -17.553199, 0), App.Vector(0.964516, -17.536841, 0), App.Vector(0.964067, -17.5046, 0), App.Vector(0.956359, -17.457449, 0), App.Vector(0.946146, -17.411789, 0), App.Vector(0.929505, -17.368486, 0), App.Vector(0.910264, -17.326034, 0), App.Vector(0.884926, -17.286252, 0), App.Vector(0.856415, -17.247396, 0), App.Vector(0.822504, -17.21207, 0), App.Vector(0.787116, -17.177953, 0), App.Vector(0.747777, -17.149766, 0), App.Vector(0.707719, -17.12452, 0), App.Vector(0.665617, -17.10387, 0), App.Vector(0.621397, -17.089063, 0), App.Vector(0.575848, -17.076939, 0), App.Vector(0.528165, -17.071009, 0), App.Vector(0.495798, -17.0698, 0), App.Vector(0.479462, -17.06919, 0)], [4, 1, 1, 1, 1, 1, 1, 1, 1, 1, 1, 1, 1, 1, 1, 1, 4], [0, 1.029744634, 2.029484694, 3.00508751, 3.97324883, 4.947661161, 5.937798898, 6.940036528, 7.980134083, 9.020231638, 10.033191535, 11.023329272, 12.003497406, 12.979740652, 13.958541426, 14.969648588, 16], False, 3, [1, 1, 1, 1, 1, 1, 1, 1, 1, 1, 1, 1, 1, 1, 1, 1, 1, 1, 1], False), False)
sketch2.addGeometry(Part.BSplineCurve([App.Vector(0.47501, -18.046113, 0), App.Vector(0.49135, -18.04552, 0), App.Vector(0.523514, -18.044353, 0), App.Vector(0.570937, -18.038223, 0), App.Vector(0.616468, -18.026466, 0), App.Vector(0.660507, -18.010425, 0), App.Vector(0.703333, -17.990458, 0), App.Vector(0.743356, -17.964229, 0), App.Vector(0.782721, -17.935019, 0), App.Vector(0.819575, -17.900938, 0), App.Vector(0.853595, -17.864059, 0), App.Vector(0.883278, -17.824563, 0), App.Vector(0.908722, -17.783622, 0), App.Vector(0.929101, -17.740636, 0), App.Vector(0.945194, -17.696374, 0), App.Vector(0.956841, -17.650388, 0), App.Vector(0.962987, -17.602338, 0), App.Vector(0.964152, -17.569751, 0), App.Vector(0.964744, -17.553199, 0)], [4, 1, 1, 1, 1, 1, 1, 1, 1, 1, 1, 1, 1, 1, 1, 1, 4], [0, 1.017878107, 2.003660885, 2.970612419, 3.939454555, 4.919652619, 5.904816436, 6.913406512, 7.969270601, 9.02513469, 10.033724766, 11.041277553, 12.021475617, 12.990317753, 13.970071221, 14.968938047, 16], False, 3, [1, 1, 1, 1, 1, 1, 1, 1, 1, 1, 1, 1, 1, 1, 1, 1, 1, 1, 1], False), False)
sketch2.addGeometry(Part.BSplineCurve([App.Vector(-0.012179, -17.551291, 0), App.Vector(-0.011571, -17.568051, 0), App.Vector(-0.010364, -17.601264, 0), App.Vector(-0.004409, -17.650201, 0), App.Vector(0.007573, -17.696854, 0), App.Vector(0.022606, -17.742055, 0), App.Vector(0.043123, -17.784898, 0), App.Vector(0.067543, -17.826391, 0), App.Vector(0.096745, -17.865435, 0), App.Vector(0.129769, -17.902215, 0), App.Vector(0.165718, -17.93596, 0), App.Vector(0.204574, -17.964951, 0), App.Vector(0.244978, -17.990352, 0), App.Vector(0.287582, -18.010455, 0), App.Vector(0.331833, -18.026568, 0), App.Vector(0.377822, -18.038209, 0), App.Vector(0.425871, -18.044356, 0), App.Vector(0.458458, -18.045521, 0), App.Vector(0.47501, -18.046113, 0)], [4, 1, 1, 1, 1, 1, 1, 1, 1, 1, 1, 1, 1, 1, 1, 1, 4], [0, 1.042034071, 2.064906527, 3.055369705, 4.030203466, 5.020228521, 6.000742353, 7.017744738, 8.043920206, 9.069249762, 10.075703201, 11.051782302, 12.029903876, 12.99669358, 13.974371501, 14.971122288, 16], False, 3, [1, 1, 1, 1, 1, 1, 1, 1, 1, 1, 1, 1, 1, 1, 1, 1, 1, 1, 1], False), False)
sketch2.addGeometry(Part.BSplineCurve([App.Vector(0.479462, -17.06919, 0), App.Vector(0.462471, -17.069424, 0), App.Vector(0.428972, -17.069887, 0), App.Vector(0.379884, -17.077506, 0), App.Vector(0.332524, -17.088024, 0), App.Vector(0.287283, -17.103284, 0), App.Vector(0.244279, -17.123234, 0), App.Vector(0.203399, -17.147572, 0), App.Vector(0.164485, -17.176175, 0), App.Vector(0.128493, -17.209238, 0), App.Vector(0.095854, -17.245104, 0), App.Vector(0.066653, -17.282897, 0), App.Vector(0.042455, -17.323087, 0), App.Vector(0.023017, -17.365273, 0), App.Vector(0.006315, -17.408802, 0), App.Vector(-0.003708, -17.454712, 0), App.Vector(-0.011549, -17.502263, 0), App.Vector(-0.011966, -17.534719, 0), App.Vector(-0.012179, -17.551291, 0)], [4, 1, 1, 1, 1, 1, 1, 1, 1, 1, 1, 1, 1, 1, 1, 1, 4], [0, 1.061159961, 2.092171217, 3.098605391, 4.092036902, 5.070589041, 6.057187883, 7.061962211, 8.084674938, 9.107387665, 10.090954379, 11.06617917, 12.032717429, 12.99305519, 13.973669989, 14.965331307, 16], False, 3, [1, 1, 1, 1, 1, 1, 1, 1, 1, 1, 1, 1, 1, 1, 1, 1, 1, 1, 1], False), False)
sketch2.addConstraint(Sketcher.Constraint("Block", 13))
sketch2.addConstraint(Sketcher.Constraint("Block", 14))
sketch2.addConstraint(Sketcher.Constraint("Block", 15))
sketch2.addConstraint(Sketcher.Constraint("Block", 17))
sketch2.addConstraint(Sketcher.Constraint("Block", 18))
sketch2.addConstraint(Sketcher.Constraint("Block", 19))
sketch2.addConstraint(Sketcher.Constraint("Block", 21))
sketch2.addConstraint(Sketcher.Constraint("Block", 22))
sketch2.addConstraint(Sketcher.Constraint("Block", 23))
sketch2.addConstraint(Sketcher.Constraint("Block", 24))
sketch2.addConstraint(Sketcher.Constraint("Block", 25))
sketch2.addConstraint(Sketcher.Constraint("Block", 26))
sketch2.addConstraint(Sketcher.Constraint("Block", 27))
sketch2.addConstraint(Sketcher.Constraint("Block", 28))
sketch2.addConstraint(Sketcher.Constraint("Block", 29))
sketch2.addConstraint(Sketcher.Constraint("Block", 30))
sketch2.addConstraint(Sketcher.Constraint("Block", 31))
sketch2.addConstraint(Sketcher.Constraint("Block", 32))
sketch2.addConstraint(Sketcher.Constraint("Block", 33))
sketch2.addConstraint(Sketcher.Constraint("Block", 34))
sketch2.addConstraint(Sketcher.Constraint("Block", 35))
sketch2.addConstraint(Sketcher.Constraint("Coincident", 0, 2, 1, 1))
sketch2.addConstraint(Sketcher.Constraint("Coincident", 1, 2, 2, 1))
sketch2.addConstraint(Sketcher.Constraint("Coincident", 2, 2, 3, 1))
sketch2.addConstraint(Sketcher.Constraint("Coincident", 3, 2, 4, 1))
sketch2.addConstraint(Sketcher.Constraint("Coincident", 4, 2, 5, 1))
sketch2.addConstraint(Sketcher.Constraint("Coincident", 5, 2, 0, 1))
sketch2.addConstraint(Sketcher.Constraint("Coincident", 6, 2, 7, 1))
sketch2.addConstraint(Sketcher.Constraint("Coincident", 7, 2, 8, 1))
sketch2.addConstraint(Sketcher.Constraint("Coincident", 8, 2, 9, 1))
sketch2.addConstraint(Sketcher.Constraint("Coincident", 9, 2, 10, 1))
sketch2.addConstraint(Sketcher.Constraint("Coincident", 10, 2, 11, 1))
sketch2.addConstraint(Sketcher.Constraint("Coincident", 11, 2, 6, 1))
sketch2.addConstraint(Sketcher.Constraint("Coincident", 12, 2, 13, 2))
sketch2.addConstraint(Sketcher.Constraint("Coincident", 15, 1, 16, 1))
sketch2.addConstraint(Sketcher.Constraint("Coincident", 16, 2, 17, 2))
sketch2.addConstraint(Sketcher.Constraint("Coincident", 19, 1, 20, 1))
sketch2.addConstraint(Sketcher.Constraint("Coincident", 20, 2, 21, 2))
sketch2.addConstraint(Sketcher.Constraint("Coincident", 27, 1, 12, 1))
sketch2.addConstraint(Sketcher.Constraint("Vertical", 0))
sketch2.addConstraint(Sketcher.Constraint("Vertical", 2))
sketch2.addConstraint(Sketcher.Constraint("Horizontal", 3))
sketch2.addConstraint(Sketcher.Constraint("Vertical", 4))
sketch2.addConstraint(Sketcher.Constraint("Horizontal", 5))
sketch2.addConstraint(Sketcher.Constraint("Vertical", 6))
sketch2.addConstraint(Sketcher.Constraint("Vertical", 8))
sketch2.addConstraint(Sketcher.Constraint("Horizontal", 9))
sketch2.addConstraint(Sketcher.Constraint("Vertical", 10))
sketch2.addConstraint(Sketcher.Constraint("Horizontal", 11))
sketch2.addConstraint(Sketcher.Constraint("DistanceX", -1, 1, 3, 2, 3.0))
sketch2.addConstraint(Sketcher.Constraint("DistanceX", -1, 1, 9, 2, 3.0))
sketch2.addConstraint(Sketcher.Constraint("DistanceX", 5, 2, 5, 1, 3.175))
sketch2.addConstraint(Sketcher.Constraint("DistanceX", 11, 2, 11, 1, 3.175))
sketch2.addConstraint(Sketcher.Constraint("DistanceY", 2, 2, 6, 2, 2.172))
sketch2.addConstraint(Sketcher.Constraint("DistanceY", 4, 1, 4, 2, 0.569872))
sketch2.addConstraint(Sketcher.Constraint("DistanceY", 10, 1, 10, 2, 0.569872))
sketch2.addConstraint(Sketcher.Constraint("DistanceY", 9, 2, 20, 2, 1.5875))
sketch2.addConstraint(Sketcher.Constraint("DistanceX", 3, 1, 3, 2, 2.645833))
sketch2.addConstraint(Sketcher.Constraint("DistanceX", 9, 1, 9, 2, 2.645833))
sketch2.addConstraint(Sketcher.Constraint("DistanceY", 0, 2, 0, 1, 0.880884))
sketch2.addConstraint(Sketcher.Constraint("DistanceY", 2, 1, 2, 2, 0.651282))
sketch2.addConstraint(Sketcher.Constraint("DistanceY", 6, 2, 6, 1, 0.880884))
sketch2.addConstraint(Sketcher.Constraint("DistanceY", 8, 1, 8, 2, 0.651282))
pad2 = doc.addObject("PartDesign::Pad", "Pad001")
body.addObject(pad2)
pad2.Profile = sketch2
pad2.Length = 1

doc.recompute()
